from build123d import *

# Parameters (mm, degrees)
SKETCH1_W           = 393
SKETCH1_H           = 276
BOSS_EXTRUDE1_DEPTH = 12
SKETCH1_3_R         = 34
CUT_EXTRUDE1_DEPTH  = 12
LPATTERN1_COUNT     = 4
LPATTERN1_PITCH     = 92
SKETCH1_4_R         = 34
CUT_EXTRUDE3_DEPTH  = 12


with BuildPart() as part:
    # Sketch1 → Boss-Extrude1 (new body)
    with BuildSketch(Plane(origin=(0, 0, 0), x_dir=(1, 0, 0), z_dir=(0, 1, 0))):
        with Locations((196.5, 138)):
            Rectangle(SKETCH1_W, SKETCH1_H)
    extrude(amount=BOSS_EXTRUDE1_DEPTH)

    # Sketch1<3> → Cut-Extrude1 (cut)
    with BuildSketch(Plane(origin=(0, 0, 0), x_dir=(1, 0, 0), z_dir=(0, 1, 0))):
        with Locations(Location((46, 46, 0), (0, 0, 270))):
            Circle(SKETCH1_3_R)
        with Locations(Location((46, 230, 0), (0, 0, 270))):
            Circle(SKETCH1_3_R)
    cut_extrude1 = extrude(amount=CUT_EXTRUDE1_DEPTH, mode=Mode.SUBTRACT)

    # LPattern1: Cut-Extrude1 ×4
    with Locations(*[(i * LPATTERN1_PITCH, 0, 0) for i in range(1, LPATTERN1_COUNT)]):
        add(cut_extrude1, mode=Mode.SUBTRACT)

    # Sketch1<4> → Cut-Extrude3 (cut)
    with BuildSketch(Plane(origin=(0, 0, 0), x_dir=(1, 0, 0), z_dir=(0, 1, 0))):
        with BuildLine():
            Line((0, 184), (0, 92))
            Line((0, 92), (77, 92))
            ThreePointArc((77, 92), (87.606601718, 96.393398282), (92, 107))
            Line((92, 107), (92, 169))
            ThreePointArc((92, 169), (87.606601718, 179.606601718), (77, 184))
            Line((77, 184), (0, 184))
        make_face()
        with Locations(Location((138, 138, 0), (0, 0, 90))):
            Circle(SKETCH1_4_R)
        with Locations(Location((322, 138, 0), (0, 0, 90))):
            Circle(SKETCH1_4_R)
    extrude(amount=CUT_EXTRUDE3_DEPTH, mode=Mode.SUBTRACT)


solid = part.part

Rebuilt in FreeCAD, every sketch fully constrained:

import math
import FreeCAD as App
import Part
import Sketcher
from FreeCAD import Vector


def add_polygon(sketch, points):
    """Adds a closed chain of lines whose ends are joined by coincident constraints."""
    first, n = sketch.GeometryCount, len(points)
    for a, b in zip(points, points[1:] + points[:1]):
        sketch.addGeometry(Part.LineSegment(App.Vector(*a, 0), App.Vector(*b, 0)), False)
    for i in range(n):
        sketch.addConstraint(Sketcher.Constraint("Coincident", first + i, 2, first + (i + 1) % n, 1))

doc = App.newDocument("Part")
body = doc.addObject("PartDesign::Body", "Body")

# Sketch on XZ plane
sketch1 = doc.addObject("Sketcher::SketchObject", "Sketch")
body.addObject(sketch1)
sketch1.AttachmentSupport = (doc.XZ_Plane, [""])
sketch1.MapMode = "FlatFace"
add_polygon(sketch1, [(0, -276), (0, 0), (393, 0), (393, -276)])  # lines 0-3
sketch1.addConstraint([
    Sketcher.Constraint("Vertical", 0),
    Sketcher.Constraint("Horizontal", 1),
    Sketcher.Constraint("Vertical", 2),
    Sketcher.Constraint("Horizontal", 3),
    Sketcher.Constraint("Coincident", 0, 2, -1, 1),
    Sketcher.Constraint("DistanceX", 1, 1, 1, 2, 393.0),
    Sketcher.Constraint("DistanceY", 0, 1, 0, 2, 276.0),
])
pad1 = doc.addObject("PartDesign::Pad", "Pad")
body.addObject(pad1)
pad1.Profile = sketch1
pad1.Length = 12
pad1.Reversed = True

# Sketch on XZ plane
sketch2 = doc.addObject("Sketcher::SketchObject", "Sketch001")
body.addObject(sketch2)
sketch2.AttachmentSupport = (doc.XZ_Plane, [""])
sketch2.MapMode = "FlatFace"
sketch2.addGeometry([
    Part.Circle(Vector(46, -46, 0), Vector(0, 0, 1), 34),
    Part.Circle(Vector(46, -230, 0), Vector(0, 0, 1), 34),
], False)
sketch2.addConstraint([
    Sketcher.Constraint("Equal", 0, 1),
    Sketcher.Constraint("Vertical", 0, 3, 1, 3),
    Sketcher.Constraint("Diameter", 0, 68.0),
    Sketcher.Constraint("DistanceX", -1, 1, 0, 3, 46.0),
    Sketcher.Constraint("DistanceY", 0, 3, -1, 1, 46.0),
    Sketcher.Constraint("DistanceY", 1, 3, -1, 1, 230.0),
])
pocket1 = doc.addObject("PartDesign::Pocket", "Pocket")
body.addObject(pocket1)
pocket1.Profile = sketch2
pocket1.Length = 12
doc.recompute()

linearpattern = doc.addObject("PartDesign::LinearPattern", "LinearPattern")
body.addObject(linearpattern)
linearpattern.Originals = [pocket1]
linearpattern.Direction = (doc.X_Axis, [""])
linearpattern.Mode = "offset"
linearpattern.Offset = 92
linearpattern.Occurrences = 4
body.Tip = linearpattern

# Sketch on XZ plane
sketch3 = doc.addObject("Sketcher::SketchObject", "Sketch002")
body.addObject(sketch3)
sketch3.AttachmentSupport = (doc.XZ_Plane, [""])
sketch3.MapMode = "FlatFace"
sketch3.addGeometry([
    Part.LineSegment(Vector(0, -184, 0), Vector(0, -92, 0)),  # 0
    Part.LineSegment(Vector(0, -92, 0), Vector(77, -92, 0)),  # 1
    Part.ArcOfCircle(Part.Circle(Vector(77, -107, 0), Vector(0, 0, 1), 15), math.radians(0), math.radians(90)),  # 2
    Part.LineSegment(Vector(92, -107, 0), Vector(92, -169, 0)),  # 3
    Part.ArcOfCircle(Part.Circle(Vector(77, -169, 0), Vector(0, 0, 1), 15), math.radians(-90), math.radians(0)),  # 4
    Part.LineSegment(Vector(77, -184, 0), Vector(0, -184, 0)),  # 5
    Part.Circle(Vector(138, -138, 0), Vector(0, 0, 1), 34),  # 6
    Part.Circle(Vector(322, -138, 0), Vector(0, 0, 1), 34),  # 7
], False)
sketch3.addConstraint([
    Sketcher.Constraint("Coincident", 0, 2, 1, 1),
    Sketcher.Constraint("Tangent", 1, 2, 2, 2),
    Sketcher.Constraint("Tangent", 2, 1, 3, 1),
    Sketcher.Constraint("Tangent", 3, 2, 4, 2),
    Sketcher.Constraint("Tangent", 4, 1, 5, 1),
    Sketcher.Constraint("Coincident", 5, 2, 0, 1),
    Sketcher.Constraint("Vertical", 0),
    Sketcher.Constraint("Horizontal", 1),
    Sketcher.Constraint("Vertical", 3),
    Sketcher.Constraint("Horizontal", 5),
    Sketcher.Constraint("Equal", 2, 4),
    Sketcher.Constraint("Equal", 6, 7),
    Sketcher.Constraint("PointOnObject", 0, 2, -2),
    Sketcher.Constraint("Horizontal", 6, 3, 7, 3),
    Sketcher.Constraint("Diameter", 6, 68.0),
    Sketcher.Constraint("Radius", 2, 15.0),
    Sketcher.Constraint("DistanceX", 1, 1, 1, 2, 77.0),
    Sketcher.Constraint("DistanceY", 0, 1, 0, 2, 92.0),
    Sketcher.Constraint("DistanceY", 2, 3, -1, 1, 107.0),
    Sketcher.Constraint("DistanceX", -1, 1, 6, 3, 138.0),
    Sketcher.Constraint("DistanceY", 6, 3, -1, 1, 138.0),
    Sketcher.Constraint("DistanceX", -1, 1, 7, 3, 322.0),
])
pocket2 = doc.addObject("PartDesign::Pocket", "Pocket001")
body.addObject(pocket2)
pocket2.Profile = sketch3
pocket2.Length = 12

doc.recompute()
